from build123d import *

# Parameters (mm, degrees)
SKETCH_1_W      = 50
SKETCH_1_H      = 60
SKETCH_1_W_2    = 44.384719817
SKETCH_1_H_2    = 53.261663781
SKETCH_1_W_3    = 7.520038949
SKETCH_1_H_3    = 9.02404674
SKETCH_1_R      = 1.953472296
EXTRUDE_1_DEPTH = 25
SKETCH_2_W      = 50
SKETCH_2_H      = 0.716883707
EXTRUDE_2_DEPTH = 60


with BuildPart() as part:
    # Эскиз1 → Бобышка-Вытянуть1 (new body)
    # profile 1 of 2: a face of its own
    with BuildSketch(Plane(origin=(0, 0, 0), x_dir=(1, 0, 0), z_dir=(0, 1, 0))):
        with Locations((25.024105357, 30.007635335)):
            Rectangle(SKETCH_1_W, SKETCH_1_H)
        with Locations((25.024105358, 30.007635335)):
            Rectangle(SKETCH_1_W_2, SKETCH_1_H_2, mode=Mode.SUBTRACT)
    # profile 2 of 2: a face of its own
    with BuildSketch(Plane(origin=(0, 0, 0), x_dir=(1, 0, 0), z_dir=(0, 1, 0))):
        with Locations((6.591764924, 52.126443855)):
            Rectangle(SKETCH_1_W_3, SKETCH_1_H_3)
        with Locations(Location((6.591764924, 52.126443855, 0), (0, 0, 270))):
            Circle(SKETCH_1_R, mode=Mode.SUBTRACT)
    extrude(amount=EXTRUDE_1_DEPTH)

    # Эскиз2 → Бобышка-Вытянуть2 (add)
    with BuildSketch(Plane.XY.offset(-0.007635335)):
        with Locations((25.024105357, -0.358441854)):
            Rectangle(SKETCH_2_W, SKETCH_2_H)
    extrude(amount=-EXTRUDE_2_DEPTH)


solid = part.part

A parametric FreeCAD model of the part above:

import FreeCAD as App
import Part
import Sketcher
from FreeCAD import Vector
Q = App.Units.Quantity

doc = App.newDocument("Part")
body = doc.addObject("PartDesign::Body", "Body")

sketch1 = body.newObject("Sketcher::SketchObject", "Sketch")
sketch1.AttachmentSupport = (doc.getObject("XZ_Plane"), [""])
sketch1.MapMode = "FlatFace"
sketch1.addGeometry([
    Part.LineSegment(Vector(0, -60, 0), Vector(0, 0, 0)),
    Part.LineSegment(Vector(0, 0, 0), Vector(50, 0, 0)),
    Part.LineSegment(Vector(50, 0, 0), Vector(50, -60, 0)),
    Part.LineSegment(Vector(50, -60, 0), Vector(0, -60, 0)),
    Part.LineSegment(Vector(47.2, -3.4, 0), Vector(2.8, -3.4, 0)),
    Part.LineSegment(Vector(2.8, -3.4, 0), Vector(2.8, -47.6, 0)),
    Part.LineSegment(Vector(2.8, -47.6, 0), Vector(10.4, -47.6, 0)),
    Part.LineSegment(Vector(10.4, -47.6, 0), Vector(10.4, -56.6, 0)),
    Part.LineSegment(Vector(10.4, -56.6, 0), Vector(47.2, -56.6, 0)),
    Part.LineSegment(Vector(47.2, -56.6, 0), Vector(47.2, -3.4, 0)),
    Part.Circle(Vector(6.6, -52.1, 0), Vector(0, 0, 1), 2),
], False)
sketch1.addConstraint([
    Sketcher.Constraint("Coincident", 0, 2, 1, 1),
    Sketcher.Constraint("Coincident", 1, 2, 2, 1),
    Sketcher.Constraint("Coincident", 2, 2, 3, 1),
    Sketcher.Constraint("Coincident", 3, 2, 0, 1),
    Sketcher.Constraint("Coincident", 4, 2, 5, 1),
    Sketcher.Constraint("Coincident", 5, 2, 6, 1),
    Sketcher.Constraint("Coincident", 6, 2, 7, 1),
    Sketcher.Constraint("Coincident", 7, 2, 8, 1),
    Sketcher.Constraint("Coincident", 8, 2, 9, 1),
    Sketcher.Constraint("Coincident", 9, 2, 4, 1),
    Sketcher.Constraint("Vertical", 0),
    Sketcher.Constraint("Horizontal", 1),
    Sketcher.Constraint("Vertical", 2),
    Sketcher.Constraint("Horizontal", 3),
    Sketcher.Constraint("Horizontal", 4),
    Sketcher.Constraint("Vertical", 5),
    Sketcher.Constraint("Horizontal", 6),
    Sketcher.Constraint("Vertical", 7),
    Sketcher.Constraint("Horizontal", 8),
    Sketcher.Constraint("Vertical", 9),
    Sketcher.Constraint("DistanceX", 1, 1, 1, 2, Q("50 mm")),
    Sketcher.Constraint("DistanceY", 0, 1, 0, 2, Q("60 mm")),
    Sketcher.Constraint("Diameter", 10, Q("3.906945 mm")),
    Sketcher.Constraint("DistanceX", 4, 2, 4, 1, Q("44.38472 mm")),
    Sketcher.Constraint("DistanceX", 6, 1, 6, 2, Q("7.520039 mm")),
    Sketcher.Constraint("DistanceX", 10, 3, 8, 2, Q("40.6247 mm")),
    Sketcher.Constraint("DistanceY", 5, 2, 5, 1, Q("44.237617 mm")),
    Sketcher.Constraint("DistanceY", 7, 2, 7, 1, Q("9.024047 mm")),
    Sketcher.Constraint("DistanceY", 5, 2, -1, 1, Q("47.61442 mm")),
    Sketcher.Constraint("DistanceX", 0, 2, 10, 3, Q("6.56766 mm")),
    Sketcher.Constraint("DistanceY", 10, 3, 0, 2, Q("52.118809 mm")),
    Sketcher.Constraint("DistanceY", 4, 2, 0, 2, Q("3.369168 mm")),
    Sketcher.Constraint("DistanceX", -1, 1, 10, 3, Q("6.591765 mm")),
])
pad1 = body.newObject("PartDesign::Pad", "Pad")
pad1.Profile = sketch1
pad1.Length = 25
pad1.Reversed = True

sketch2 = body.newObject("Sketcher::SketchObject", "Sketch001")
sketch2.AttachmentSupport = (doc.getObject("XY_Plane"), [""])
sketch2.MapMode = "FlatFace"
sketch2.AttachmentOffset = App.Placement(Vector(0, 0, -0.007635), App.Rotation())
sketch2.addGeometry([
    Part.LineSegment(Vector(0, 0, 0), Vector(0, -0.7, 0)),
    Part.LineSegment(Vector(0, -0.7, 0), Vector(50, -0.7, 0)),
    Part.LineSegment(Vector(50, -0.7, 0), Vector(50, 0, 0)),
    Part.LineSegment(Vector(50, 0, 0), Vector(0, 0, 0)),
], False)
sketch2.addConstraint([
    Sketcher.Constraint("Coincident", 0, 2, 1, 1),
    Sketcher.Constraint("Coincident", 1, 2, 2, 1),
    Sketcher.Constraint("Coincident", 2, 2, 3, 1),
    Sketcher.Constraint("Coincident", 3, 2, 0, 1),
    Sketcher.Constraint("Vertical", 0),
    Sketcher.Constraint("Horizontal", 1),
    Sketcher.Constraint("Vertical", 2),
    Sketcher.Constraint("Horizontal", 3),
    Sketcher.Constraint("PointOnObject", 2, 2, -1),
    Sketcher.Constraint("DistanceX", 1, 1, 1, 2, Q("50 mm")),
    Sketcher.Constraint("DistanceY", 0, 2, 0, 1, Q("0.716884 mm")),
    Sketcher.Constraint("DistanceX", -1, 1, 0, 2, Q("0.024105 mm")),
])
pad2 = body.newObject("PartDesign::Pad", "Pad001")
pad2.Profile = sketch2
pad2.Length = 60
pad2.Reversed = True

doc.recompute()
